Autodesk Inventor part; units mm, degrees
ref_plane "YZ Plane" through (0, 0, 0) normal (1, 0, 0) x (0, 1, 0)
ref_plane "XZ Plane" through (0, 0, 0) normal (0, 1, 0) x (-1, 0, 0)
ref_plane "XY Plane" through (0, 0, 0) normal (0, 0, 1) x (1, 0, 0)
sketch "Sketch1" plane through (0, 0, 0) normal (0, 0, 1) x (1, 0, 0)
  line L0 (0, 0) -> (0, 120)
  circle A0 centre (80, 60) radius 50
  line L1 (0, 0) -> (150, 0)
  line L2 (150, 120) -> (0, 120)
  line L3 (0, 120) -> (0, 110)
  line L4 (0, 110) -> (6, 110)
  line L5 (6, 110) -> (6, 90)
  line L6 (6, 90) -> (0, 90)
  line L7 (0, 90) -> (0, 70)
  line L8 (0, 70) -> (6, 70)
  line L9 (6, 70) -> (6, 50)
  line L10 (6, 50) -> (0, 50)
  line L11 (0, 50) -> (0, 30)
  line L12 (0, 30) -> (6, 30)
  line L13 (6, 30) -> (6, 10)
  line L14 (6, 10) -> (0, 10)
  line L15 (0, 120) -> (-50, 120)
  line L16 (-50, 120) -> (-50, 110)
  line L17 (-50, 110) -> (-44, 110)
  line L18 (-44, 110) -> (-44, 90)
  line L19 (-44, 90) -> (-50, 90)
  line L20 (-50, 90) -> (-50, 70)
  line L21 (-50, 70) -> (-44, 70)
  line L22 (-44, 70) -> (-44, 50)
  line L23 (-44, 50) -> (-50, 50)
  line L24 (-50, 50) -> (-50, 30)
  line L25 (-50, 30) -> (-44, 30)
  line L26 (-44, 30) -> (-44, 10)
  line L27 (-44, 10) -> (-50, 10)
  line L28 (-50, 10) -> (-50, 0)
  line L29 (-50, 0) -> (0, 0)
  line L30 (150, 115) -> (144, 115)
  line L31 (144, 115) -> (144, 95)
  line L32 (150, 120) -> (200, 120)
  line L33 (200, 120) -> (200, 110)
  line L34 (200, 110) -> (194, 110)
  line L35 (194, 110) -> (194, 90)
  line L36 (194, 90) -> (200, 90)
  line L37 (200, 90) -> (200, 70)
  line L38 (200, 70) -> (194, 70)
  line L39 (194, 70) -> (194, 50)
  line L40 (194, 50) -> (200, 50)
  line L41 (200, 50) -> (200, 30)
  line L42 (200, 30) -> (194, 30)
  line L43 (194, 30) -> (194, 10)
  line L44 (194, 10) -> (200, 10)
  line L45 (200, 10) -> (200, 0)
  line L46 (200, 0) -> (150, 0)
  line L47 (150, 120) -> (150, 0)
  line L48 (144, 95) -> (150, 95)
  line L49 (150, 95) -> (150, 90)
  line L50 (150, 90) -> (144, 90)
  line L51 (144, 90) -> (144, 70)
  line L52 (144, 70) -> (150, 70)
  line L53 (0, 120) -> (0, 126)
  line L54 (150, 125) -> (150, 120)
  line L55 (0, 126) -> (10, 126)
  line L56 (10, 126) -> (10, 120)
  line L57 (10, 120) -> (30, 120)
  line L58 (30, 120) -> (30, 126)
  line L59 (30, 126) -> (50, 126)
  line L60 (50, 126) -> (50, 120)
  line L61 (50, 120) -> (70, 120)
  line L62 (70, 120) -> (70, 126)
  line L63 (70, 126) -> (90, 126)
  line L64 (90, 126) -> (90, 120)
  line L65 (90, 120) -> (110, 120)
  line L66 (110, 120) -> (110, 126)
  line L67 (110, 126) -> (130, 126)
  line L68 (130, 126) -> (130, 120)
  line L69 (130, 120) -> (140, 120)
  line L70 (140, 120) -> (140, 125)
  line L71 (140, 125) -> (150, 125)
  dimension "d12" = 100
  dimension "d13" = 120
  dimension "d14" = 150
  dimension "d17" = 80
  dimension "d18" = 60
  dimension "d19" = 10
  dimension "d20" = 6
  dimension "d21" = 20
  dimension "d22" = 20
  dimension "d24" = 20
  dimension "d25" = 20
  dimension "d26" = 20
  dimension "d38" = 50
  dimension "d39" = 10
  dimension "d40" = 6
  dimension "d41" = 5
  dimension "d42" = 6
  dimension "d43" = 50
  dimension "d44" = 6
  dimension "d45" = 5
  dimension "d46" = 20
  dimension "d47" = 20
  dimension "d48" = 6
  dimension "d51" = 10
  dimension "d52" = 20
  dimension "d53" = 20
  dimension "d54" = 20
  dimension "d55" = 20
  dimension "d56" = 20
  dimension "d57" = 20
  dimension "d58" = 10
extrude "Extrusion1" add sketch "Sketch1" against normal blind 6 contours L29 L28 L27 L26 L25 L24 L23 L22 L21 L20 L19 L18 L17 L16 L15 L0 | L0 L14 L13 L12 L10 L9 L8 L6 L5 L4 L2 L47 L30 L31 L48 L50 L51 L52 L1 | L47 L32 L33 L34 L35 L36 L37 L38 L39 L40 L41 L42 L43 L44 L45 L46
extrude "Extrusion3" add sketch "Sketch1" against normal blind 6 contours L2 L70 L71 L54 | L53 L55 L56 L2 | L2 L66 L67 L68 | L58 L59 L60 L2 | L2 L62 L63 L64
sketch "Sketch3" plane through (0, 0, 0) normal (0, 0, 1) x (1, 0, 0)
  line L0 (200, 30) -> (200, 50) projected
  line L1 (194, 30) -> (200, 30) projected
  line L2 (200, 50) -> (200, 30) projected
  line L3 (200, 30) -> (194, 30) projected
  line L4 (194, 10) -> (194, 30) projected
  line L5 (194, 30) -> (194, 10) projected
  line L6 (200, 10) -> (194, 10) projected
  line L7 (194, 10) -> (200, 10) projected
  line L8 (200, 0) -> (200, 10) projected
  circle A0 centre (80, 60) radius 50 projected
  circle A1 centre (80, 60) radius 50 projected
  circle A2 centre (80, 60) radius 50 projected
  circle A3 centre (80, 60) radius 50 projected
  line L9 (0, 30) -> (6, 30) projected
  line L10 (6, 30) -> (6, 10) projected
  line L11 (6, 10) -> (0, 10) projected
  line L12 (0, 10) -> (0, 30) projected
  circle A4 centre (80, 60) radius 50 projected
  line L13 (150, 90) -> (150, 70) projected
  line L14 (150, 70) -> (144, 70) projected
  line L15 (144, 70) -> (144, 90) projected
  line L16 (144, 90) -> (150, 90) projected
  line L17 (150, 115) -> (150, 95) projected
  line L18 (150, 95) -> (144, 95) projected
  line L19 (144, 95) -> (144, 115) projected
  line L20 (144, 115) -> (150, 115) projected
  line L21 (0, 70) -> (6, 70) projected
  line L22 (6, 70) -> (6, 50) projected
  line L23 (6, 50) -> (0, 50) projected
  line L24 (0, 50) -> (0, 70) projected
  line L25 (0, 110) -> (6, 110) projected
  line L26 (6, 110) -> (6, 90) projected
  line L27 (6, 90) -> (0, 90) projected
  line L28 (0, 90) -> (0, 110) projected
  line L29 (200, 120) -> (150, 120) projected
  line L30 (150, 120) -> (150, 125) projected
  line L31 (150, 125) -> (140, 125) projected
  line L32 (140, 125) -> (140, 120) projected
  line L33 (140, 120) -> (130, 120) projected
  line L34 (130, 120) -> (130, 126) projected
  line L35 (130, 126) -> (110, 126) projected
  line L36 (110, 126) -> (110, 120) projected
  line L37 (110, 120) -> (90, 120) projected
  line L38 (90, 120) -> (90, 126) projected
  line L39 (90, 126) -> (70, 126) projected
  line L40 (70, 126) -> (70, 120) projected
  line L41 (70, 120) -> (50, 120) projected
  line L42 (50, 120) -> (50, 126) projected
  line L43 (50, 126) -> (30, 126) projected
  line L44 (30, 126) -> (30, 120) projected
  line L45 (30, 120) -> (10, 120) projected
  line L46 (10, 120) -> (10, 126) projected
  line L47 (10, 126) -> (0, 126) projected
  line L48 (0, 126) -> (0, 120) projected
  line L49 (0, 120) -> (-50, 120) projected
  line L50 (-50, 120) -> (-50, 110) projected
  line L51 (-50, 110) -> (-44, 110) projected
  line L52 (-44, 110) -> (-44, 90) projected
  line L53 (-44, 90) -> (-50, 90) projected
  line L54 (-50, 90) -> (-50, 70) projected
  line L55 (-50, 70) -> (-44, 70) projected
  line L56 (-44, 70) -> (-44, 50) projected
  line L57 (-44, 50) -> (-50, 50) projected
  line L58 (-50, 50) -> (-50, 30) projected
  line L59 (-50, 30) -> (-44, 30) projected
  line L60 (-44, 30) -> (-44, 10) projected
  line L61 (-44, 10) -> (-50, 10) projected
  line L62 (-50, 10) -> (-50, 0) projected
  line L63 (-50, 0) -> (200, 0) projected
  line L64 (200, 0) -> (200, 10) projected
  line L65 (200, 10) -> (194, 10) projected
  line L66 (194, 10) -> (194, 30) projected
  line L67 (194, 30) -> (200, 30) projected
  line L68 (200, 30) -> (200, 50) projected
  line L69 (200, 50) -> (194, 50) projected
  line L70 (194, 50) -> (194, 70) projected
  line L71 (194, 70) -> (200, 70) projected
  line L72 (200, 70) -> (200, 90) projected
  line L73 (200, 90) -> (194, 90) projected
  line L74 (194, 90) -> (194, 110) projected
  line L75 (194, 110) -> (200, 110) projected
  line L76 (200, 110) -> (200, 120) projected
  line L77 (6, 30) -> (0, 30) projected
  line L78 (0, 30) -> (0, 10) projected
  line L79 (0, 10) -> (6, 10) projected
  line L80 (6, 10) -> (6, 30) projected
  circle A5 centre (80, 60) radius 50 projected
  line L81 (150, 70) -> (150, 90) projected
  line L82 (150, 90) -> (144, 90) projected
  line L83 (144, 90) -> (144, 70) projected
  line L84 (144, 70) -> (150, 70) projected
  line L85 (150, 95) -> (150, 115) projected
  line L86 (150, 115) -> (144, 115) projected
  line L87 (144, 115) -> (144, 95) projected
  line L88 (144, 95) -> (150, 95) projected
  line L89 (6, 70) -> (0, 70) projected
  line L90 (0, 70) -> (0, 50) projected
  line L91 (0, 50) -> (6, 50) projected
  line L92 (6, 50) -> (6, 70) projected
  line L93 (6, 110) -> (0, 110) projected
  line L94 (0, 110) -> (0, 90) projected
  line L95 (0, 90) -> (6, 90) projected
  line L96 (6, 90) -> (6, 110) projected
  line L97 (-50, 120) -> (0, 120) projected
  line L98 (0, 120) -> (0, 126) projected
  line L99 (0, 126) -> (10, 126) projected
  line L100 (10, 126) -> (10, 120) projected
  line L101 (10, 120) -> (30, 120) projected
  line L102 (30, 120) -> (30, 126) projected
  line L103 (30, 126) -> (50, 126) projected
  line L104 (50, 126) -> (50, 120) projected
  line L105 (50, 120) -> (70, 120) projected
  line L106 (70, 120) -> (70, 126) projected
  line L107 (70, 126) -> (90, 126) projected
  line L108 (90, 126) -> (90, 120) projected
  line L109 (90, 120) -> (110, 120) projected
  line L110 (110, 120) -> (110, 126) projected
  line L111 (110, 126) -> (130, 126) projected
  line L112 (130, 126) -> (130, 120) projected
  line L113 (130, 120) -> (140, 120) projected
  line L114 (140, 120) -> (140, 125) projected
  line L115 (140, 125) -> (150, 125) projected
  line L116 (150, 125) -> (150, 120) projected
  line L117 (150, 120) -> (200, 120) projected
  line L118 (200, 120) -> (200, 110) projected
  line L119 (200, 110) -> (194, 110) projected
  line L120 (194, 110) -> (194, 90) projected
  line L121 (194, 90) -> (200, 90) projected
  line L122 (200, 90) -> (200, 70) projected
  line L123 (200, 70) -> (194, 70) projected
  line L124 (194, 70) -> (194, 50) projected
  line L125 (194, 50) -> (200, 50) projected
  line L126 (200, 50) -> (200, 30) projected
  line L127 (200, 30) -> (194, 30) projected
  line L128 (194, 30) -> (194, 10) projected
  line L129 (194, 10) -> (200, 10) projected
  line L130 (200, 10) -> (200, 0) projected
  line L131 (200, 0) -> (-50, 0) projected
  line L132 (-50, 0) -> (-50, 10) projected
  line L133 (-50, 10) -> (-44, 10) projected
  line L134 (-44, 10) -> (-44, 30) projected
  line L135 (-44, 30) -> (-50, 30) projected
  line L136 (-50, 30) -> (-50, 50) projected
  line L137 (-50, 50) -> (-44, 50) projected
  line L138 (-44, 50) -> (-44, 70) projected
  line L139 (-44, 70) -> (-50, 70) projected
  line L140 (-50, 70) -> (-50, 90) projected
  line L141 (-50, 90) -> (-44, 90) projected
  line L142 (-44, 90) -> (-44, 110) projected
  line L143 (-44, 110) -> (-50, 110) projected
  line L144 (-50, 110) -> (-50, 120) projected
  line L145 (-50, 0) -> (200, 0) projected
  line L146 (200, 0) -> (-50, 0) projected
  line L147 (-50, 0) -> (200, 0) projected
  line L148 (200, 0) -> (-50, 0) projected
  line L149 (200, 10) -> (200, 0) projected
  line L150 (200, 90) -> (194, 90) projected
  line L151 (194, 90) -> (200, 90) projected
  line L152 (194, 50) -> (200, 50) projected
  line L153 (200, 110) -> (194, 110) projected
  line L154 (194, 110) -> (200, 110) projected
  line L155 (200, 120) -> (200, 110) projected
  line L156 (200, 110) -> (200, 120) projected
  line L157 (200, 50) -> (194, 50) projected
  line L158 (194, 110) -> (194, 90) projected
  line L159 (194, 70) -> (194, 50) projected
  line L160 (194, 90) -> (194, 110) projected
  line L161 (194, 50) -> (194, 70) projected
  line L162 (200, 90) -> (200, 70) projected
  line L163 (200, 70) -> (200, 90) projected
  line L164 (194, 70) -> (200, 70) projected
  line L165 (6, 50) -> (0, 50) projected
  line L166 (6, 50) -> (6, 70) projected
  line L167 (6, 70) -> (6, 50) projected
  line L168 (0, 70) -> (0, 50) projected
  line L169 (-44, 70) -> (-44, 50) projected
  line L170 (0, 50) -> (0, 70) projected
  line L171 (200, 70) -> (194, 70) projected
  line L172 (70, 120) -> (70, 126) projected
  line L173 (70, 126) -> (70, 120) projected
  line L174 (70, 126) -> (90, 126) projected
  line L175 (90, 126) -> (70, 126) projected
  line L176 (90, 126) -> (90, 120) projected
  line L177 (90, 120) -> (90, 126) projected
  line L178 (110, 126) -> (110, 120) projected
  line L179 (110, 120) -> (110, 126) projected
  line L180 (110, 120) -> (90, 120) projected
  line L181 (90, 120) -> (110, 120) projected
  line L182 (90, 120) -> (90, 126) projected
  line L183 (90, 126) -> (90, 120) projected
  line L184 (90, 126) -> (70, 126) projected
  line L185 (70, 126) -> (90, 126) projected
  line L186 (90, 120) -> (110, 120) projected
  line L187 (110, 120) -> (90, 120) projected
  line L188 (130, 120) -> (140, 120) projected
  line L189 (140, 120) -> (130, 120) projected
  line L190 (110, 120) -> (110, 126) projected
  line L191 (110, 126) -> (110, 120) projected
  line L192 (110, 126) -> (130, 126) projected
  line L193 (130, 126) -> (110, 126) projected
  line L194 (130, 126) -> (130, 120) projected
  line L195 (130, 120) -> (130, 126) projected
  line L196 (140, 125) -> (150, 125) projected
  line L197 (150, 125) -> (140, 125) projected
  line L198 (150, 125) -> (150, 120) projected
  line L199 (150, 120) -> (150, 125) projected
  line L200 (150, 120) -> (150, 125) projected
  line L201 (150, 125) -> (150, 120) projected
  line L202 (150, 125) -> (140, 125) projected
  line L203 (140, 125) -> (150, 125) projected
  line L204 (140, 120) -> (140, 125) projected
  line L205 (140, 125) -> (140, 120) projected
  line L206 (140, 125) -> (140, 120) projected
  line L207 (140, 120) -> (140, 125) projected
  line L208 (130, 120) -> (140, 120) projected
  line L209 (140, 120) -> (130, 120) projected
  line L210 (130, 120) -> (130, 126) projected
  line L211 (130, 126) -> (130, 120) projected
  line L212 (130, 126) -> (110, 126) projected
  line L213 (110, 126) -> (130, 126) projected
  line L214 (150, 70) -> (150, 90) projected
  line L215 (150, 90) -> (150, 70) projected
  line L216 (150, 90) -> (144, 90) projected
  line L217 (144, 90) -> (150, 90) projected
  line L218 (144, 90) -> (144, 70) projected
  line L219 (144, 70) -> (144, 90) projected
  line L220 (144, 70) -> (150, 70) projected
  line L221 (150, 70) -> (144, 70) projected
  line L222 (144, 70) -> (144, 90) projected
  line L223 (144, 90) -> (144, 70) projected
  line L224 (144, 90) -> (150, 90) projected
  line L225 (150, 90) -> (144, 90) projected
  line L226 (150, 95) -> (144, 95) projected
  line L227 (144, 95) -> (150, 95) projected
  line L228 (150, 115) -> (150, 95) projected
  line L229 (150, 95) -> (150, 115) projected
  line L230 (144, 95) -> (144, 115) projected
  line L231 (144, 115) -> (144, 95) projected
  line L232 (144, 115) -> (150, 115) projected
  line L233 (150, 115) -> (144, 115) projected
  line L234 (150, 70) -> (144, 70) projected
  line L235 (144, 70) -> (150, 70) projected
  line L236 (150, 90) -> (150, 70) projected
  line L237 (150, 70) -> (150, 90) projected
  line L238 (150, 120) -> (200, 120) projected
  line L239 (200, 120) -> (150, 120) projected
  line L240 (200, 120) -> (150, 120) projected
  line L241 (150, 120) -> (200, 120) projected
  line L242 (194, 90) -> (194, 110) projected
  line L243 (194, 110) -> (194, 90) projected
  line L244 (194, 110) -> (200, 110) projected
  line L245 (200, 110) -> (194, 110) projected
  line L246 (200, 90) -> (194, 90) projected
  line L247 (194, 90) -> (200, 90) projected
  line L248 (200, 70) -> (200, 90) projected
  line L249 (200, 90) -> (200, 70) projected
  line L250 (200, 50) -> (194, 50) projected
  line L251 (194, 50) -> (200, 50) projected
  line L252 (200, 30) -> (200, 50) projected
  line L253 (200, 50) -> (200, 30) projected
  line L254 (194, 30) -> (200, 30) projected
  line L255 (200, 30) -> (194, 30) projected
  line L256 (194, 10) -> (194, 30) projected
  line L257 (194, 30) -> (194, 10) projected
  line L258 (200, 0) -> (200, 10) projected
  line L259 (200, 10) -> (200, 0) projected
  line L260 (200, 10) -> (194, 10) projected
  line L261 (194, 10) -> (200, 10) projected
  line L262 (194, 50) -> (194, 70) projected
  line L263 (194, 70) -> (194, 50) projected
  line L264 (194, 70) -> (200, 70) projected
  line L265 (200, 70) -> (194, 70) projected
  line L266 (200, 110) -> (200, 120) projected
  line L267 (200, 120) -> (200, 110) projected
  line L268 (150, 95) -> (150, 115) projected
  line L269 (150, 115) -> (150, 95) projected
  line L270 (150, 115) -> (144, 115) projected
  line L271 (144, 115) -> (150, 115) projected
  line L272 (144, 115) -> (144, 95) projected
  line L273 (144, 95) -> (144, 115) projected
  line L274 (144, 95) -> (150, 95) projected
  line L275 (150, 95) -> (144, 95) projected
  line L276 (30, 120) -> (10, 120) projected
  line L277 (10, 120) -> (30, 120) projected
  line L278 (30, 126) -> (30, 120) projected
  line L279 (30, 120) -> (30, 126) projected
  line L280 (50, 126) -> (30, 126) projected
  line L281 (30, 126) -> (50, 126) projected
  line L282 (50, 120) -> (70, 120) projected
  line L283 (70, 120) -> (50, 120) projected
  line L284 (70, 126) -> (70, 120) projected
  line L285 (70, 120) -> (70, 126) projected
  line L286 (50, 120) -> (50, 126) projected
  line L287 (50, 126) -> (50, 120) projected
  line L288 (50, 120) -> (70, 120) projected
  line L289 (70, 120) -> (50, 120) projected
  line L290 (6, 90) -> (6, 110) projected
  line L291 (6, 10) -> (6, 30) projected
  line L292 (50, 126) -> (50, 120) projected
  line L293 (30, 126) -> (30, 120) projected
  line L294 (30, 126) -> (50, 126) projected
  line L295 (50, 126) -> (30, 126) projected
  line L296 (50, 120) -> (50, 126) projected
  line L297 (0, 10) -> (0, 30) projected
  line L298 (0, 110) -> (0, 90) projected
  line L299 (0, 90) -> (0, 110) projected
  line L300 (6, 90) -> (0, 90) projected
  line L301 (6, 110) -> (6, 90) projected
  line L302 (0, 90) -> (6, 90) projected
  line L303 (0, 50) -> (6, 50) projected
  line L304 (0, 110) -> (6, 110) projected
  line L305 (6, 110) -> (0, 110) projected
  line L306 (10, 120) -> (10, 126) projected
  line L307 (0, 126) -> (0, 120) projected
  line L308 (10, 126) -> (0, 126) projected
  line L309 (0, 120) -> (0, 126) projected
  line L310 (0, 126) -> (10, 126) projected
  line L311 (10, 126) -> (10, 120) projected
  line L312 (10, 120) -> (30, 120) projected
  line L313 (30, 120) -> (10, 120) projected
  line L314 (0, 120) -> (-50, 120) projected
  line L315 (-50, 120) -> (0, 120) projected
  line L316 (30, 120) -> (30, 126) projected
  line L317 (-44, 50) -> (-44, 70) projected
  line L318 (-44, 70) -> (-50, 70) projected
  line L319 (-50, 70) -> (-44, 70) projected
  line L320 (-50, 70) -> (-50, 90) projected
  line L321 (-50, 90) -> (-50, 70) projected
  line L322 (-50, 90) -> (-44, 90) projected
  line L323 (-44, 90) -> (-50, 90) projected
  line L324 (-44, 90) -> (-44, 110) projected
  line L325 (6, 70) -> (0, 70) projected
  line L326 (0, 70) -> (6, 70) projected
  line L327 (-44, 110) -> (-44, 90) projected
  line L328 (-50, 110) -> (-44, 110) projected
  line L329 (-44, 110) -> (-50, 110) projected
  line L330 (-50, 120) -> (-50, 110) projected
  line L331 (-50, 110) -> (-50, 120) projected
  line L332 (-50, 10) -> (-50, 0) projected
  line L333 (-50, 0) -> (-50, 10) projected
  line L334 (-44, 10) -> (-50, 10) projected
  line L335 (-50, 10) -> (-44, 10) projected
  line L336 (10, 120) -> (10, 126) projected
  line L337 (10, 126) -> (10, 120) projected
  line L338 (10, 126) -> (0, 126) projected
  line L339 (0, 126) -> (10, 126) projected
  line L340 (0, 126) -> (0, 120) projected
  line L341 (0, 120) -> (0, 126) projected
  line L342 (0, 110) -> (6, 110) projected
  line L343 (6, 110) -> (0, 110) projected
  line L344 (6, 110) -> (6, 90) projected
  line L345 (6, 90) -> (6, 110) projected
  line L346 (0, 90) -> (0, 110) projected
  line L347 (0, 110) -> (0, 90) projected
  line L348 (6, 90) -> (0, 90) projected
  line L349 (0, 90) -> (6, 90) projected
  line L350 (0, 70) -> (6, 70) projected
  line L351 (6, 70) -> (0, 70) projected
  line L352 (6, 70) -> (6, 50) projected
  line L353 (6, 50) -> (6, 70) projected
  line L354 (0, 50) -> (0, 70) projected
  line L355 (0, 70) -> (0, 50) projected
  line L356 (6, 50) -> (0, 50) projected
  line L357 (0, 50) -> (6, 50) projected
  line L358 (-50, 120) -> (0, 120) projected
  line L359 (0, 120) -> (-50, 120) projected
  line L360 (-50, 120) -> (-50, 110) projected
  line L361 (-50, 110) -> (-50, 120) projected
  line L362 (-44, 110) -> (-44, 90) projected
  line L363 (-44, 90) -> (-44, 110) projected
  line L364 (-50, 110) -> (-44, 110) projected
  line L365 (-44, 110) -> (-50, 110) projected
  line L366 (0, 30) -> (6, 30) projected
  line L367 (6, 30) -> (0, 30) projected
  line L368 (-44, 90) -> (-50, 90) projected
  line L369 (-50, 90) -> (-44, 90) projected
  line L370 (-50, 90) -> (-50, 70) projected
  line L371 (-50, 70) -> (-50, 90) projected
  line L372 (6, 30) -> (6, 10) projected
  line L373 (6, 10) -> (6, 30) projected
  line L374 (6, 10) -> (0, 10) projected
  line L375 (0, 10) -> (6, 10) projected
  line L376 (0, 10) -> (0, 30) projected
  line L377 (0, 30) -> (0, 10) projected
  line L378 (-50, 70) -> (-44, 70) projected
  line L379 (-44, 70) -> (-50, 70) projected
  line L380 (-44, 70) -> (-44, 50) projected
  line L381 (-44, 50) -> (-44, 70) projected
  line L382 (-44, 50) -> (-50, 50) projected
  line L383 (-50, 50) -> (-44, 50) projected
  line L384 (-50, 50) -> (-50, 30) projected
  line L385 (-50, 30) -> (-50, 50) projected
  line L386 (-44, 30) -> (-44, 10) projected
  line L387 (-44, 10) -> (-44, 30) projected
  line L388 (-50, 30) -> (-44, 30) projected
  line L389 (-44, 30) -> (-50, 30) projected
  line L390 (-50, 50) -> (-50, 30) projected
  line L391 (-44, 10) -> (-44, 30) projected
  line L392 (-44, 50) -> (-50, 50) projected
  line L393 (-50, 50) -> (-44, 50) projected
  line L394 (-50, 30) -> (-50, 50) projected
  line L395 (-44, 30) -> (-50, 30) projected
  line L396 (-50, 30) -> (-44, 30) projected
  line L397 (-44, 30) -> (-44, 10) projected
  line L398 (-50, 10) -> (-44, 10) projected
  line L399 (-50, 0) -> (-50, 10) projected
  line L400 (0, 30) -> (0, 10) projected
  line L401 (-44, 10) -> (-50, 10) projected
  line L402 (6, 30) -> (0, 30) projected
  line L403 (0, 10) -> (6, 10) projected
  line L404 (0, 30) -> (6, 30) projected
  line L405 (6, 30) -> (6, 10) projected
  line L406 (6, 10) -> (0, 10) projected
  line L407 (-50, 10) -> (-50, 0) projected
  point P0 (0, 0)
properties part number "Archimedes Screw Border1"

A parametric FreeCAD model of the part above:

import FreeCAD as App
import Part
import Sketcher

doc = App.newDocument("Part")
body = doc.addObject("PartDesign::Body", "Body")

# Sketch on XY plane
sketch1 = doc.addObject("Sketcher::SketchObject", "Sketch")
body.addObject(sketch1)
sketch1.AttachmentSupport = (doc.XY_Plane, [""])
sketch1.MapMode = "FlatFace"
sketch1.addGeometry([
    Part.LineSegment(App.Vector(-50, 0, 0), App.Vector(200, 0, 0)),  # 0
    Part.LineSegment(App.Vector(200, 0, 0), App.Vector(200, 10, 0)),  # 1
    Part.LineSegment(App.Vector(200, 10, 0), App.Vector(194, 10, 0)),  # 2
    Part.LineSegment(App.Vector(194, 10, 0), App.Vector(194, 30, 0)),  # 3
    Part.LineSegment(App.Vector(194, 30, 0), App.Vector(200, 30, 0)),  # 4
    Part.LineSegment(App.Vector(200, 30, 0), App.Vector(200, 50, 0)),  # 5
    Part.LineSegment(App.Vector(200, 50, 0), App.Vector(194, 50, 0)),  # 6
    Part.LineSegment(App.Vector(194, 50, 0), App.Vector(194, 70, 0)),  # 7
    Part.LineSegment(App.Vector(194, 70, 0), App.Vector(200, 70, 0)),  # 8
    Part.LineSegment(App.Vector(200, 70, 0), App.Vector(200, 90, 0)),  # 9
    Part.LineSegment(App.Vector(200, 90, 0), App.Vector(194, 90, 0)),  # 10
    Part.LineSegment(App.Vector(194, 90, 0), App.Vector(194, 110, 0)),  # 11
    Part.LineSegment(App.Vector(194, 110, 0), App.Vector(200, 110, 0)),  # 12
    Part.LineSegment(App.Vector(200, 110, 0), App.Vector(200, 120, 0)),  # 13
    Part.LineSegment(App.Vector(200, 120, 0), App.Vector(-50, 120, 0)),  # 14
    Part.LineSegment(App.Vector(-50, 120, 0), App.Vector(-50, 110, 0)),  # 15
    Part.LineSegment(App.Vector(-50, 110, 0), App.Vector(-44, 110, 0)),  # 16
    Part.LineSegment(App.Vector(-44, 110, 0), App.Vector(-44, 90, 0)),  # 17
    Part.LineSegment(App.Vector(-44, 90, 0), App.Vector(-50, 90, 0)),  # 18
    Part.LineSegment(App.Vector(-50, 90, 0), App.Vector(-50, 70, 0)),  # 19
    Part.LineSegment(App.Vector(-50, 70, 0), App.Vector(-44, 70, 0)),  # 20
    Part.LineSegment(App.Vector(-44, 70, 0), App.Vector(-44, 50, 0)),  # 21
    Part.LineSegment(App.Vector(-44, 50, 0), App.Vector(-50, 50, 0)),  # 22
    Part.LineSegment(App.Vector(-50, 50, 0), App.Vector(-50, 30, 0)),  # 23
    Part.LineSegment(App.Vector(-50, 30, 0), App.Vector(-44, 30, 0)),  # 24
    Part.LineSegment(App.Vector(-44, 30, 0), App.Vector(-44, 10, 0)),  # 25
    Part.LineSegment(App.Vector(-44, 10, 0), App.Vector(-50, 10, 0)),  # 26
    Part.LineSegment(App.Vector(-50, 10, 0), App.Vector(-50, 0, 0)),  # 27
    Part.LineSegment(App.Vector(0, 90, 0), App.Vector(0, 110, 0)),  # 28
    Part.LineSegment(App.Vector(0, 110, 0), App.Vector(6, 110, 0)),  # 29
    Part.LineSegment(App.Vector(6, 110, 0), App.Vector(6, 90, 0)),  # 30
    Part.LineSegment(App.Vector(6, 90, 0), App.Vector(0, 90, 0)),  # 31
    Part.LineSegment(App.Vector(0, 50, 0), App.Vector(0, 70, 0)),  # 32
    Part.LineSegment(App.Vector(0, 70, 0), App.Vector(6, 70, 0)),  # 33
    Part.LineSegment(App.Vector(6, 70, 0), App.Vector(6, 50, 0)),  # 34
    Part.LineSegment(App.Vector(6, 50, 0), App.Vector(0, 50, 0)),  # 35
    Part.LineSegment(App.Vector(0, 10, 0), App.Vector(0, 30, 0)),  # 36
    Part.LineSegment(App.Vector(0, 30, 0), App.Vector(6, 30, 0)),  # 37
    Part.LineSegment(App.Vector(6, 30, 0), App.Vector(6, 10, 0)),  # 38
    Part.LineSegment(App.Vector(6, 10, 0), App.Vector(0, 10, 0)),  # 39
    Part.LineSegment(App.Vector(150, 70, 0), App.Vector(144, 70, 0)),  # 40
    Part.LineSegment(App.Vector(144, 70, 0), App.Vector(144, 90, 0)),  # 41
    Part.LineSegment(App.Vector(144, 90, 0), App.Vector(150, 90, 0)),  # 42
    Part.LineSegment(App.Vector(150, 90, 0), App.Vector(150, 70, 0)),  # 43
    Part.Circle(App.Vector(80, 60, 0), App.Vector(0, 0, 1), 50),  # 44
    Part.LineSegment(App.Vector(144, 115, 0), App.Vector(150, 115, 0)),  # 45
    Part.LineSegment(App.Vector(150, 115, 0), App.Vector(150, 95, 0)),  # 46
    Part.LineSegment(App.Vector(150, 95, 0), App.Vector(144, 95, 0)),  # 47
    Part.LineSegment(App.Vector(144, 95, 0), App.Vector(144, 115, 0)),  # 48
], False)
sketch1.addConstraint([
    Sketcher.Constraint("Coincident", 0, 2, 1, 1),
    Sketcher.Constraint("Coincident", 1, 2, 2, 1),
    Sketcher.Constraint("Coincident", 2, 2, 3, 1),
    Sketcher.Constraint("Coincident", 3, 2, 4, 1),
    Sketcher.Constraint("Coincident", 4, 2, 5, 1),
    Sketcher.Constraint("Coincident", 5, 2, 6, 1),
    Sketcher.Constraint("Coincident", 6, 2, 7, 1),
    Sketcher.Constraint("Coincident", 7, 2, 8, 1),
    Sketcher.Constraint("Coincident", 8, 2, 9, 1),
    Sketcher.Constraint("Coincident", 9, 2, 10, 1),
    Sketcher.Constraint("Coincident", 10, 2, 11, 1),
    Sketcher.Constraint("Coincident", 11, 2, 12, 1),
    Sketcher.Constraint("Coincident", 12, 2, 13, 1),
    Sketcher.Constraint("Coincident", 13, 2, 14, 1),
    Sketcher.Constraint("Coincident", 14, 2, 15, 1),
    Sketcher.Constraint("Coincident", 15, 2, 16, 1),
    Sketcher.Constraint("Coincident", 16, 2, 17, 1),
    Sketcher.Constraint("Coincident", 17, 2, 18, 1),
    Sketcher.Constraint("Coincident", 18, 2, 19, 1),
    Sketcher.Constraint("Coincident", 19, 2, 20, 1),
    Sketcher.Constraint("Coincident", 20, 2, 21, 1),
    Sketcher.Constraint("Coincident", 21, 2, 22, 1),
    Sketcher.Constraint("Coincident", 22, 2, 23, 1),
    Sketcher.Constraint("Coincident", 23, 2, 24, 1),
    Sketcher.Constraint("Coincident", 24, 2, 25, 1),
    Sketcher.Constraint("Coincident", 25, 2, 26, 1),
    Sketcher.Constraint("Coincident", 26, 2, 27, 1),
    Sketcher.Constraint("Coincident", 27, 2, 0, 1),
    Sketcher.Constraint("Coincident", 28, 2, 29, 1),
    Sketcher.Constraint("Coincident", 29, 2, 30, 1),
    Sketcher.Constraint("Coincident", 30, 2, 31, 1),
    Sketcher.Constraint("Coincident", 31, 2, 28, 1),
    Sketcher.Constraint("Coincident", 32, 2, 33, 1),
    Sketcher.Constraint("Coincident", 33, 2, 34, 1),
    Sketcher.Constraint("Coincident", 34, 2, 35, 1),
    Sketcher.Constraint("Coincident", 35, 2, 32, 1),
    Sketcher.Constraint("Coincident", 36, 2, 37, 1),
    Sketcher.Constraint("Coincident", 37, 2, 38, 1),
    Sketcher.Constraint("Coincident", 38, 2, 39, 1),
    Sketcher.Constraint("Coincident", 39, 2, 36, 1),
    Sketcher.Constraint("Coincident", 40, 2, 41, 1),
    Sketcher.Constraint("Coincident", 41, 2, 42, 1),
    Sketcher.Constraint("Coincident", 42, 2, 43, 1),
    Sketcher.Constraint("Coincident", 43, 2, 40, 1),
    Sketcher.Constraint("Coincident", 45, 2, 46, 1),
    Sketcher.Constraint("Coincident", 46, 2, 47, 1),
    Sketcher.Constraint("Coincident", 47, 2, 48, 1),
    Sketcher.Constraint("Coincident", 48, 2, 45, 1),
    Sketcher.Constraint("Horizontal", 0),
    Sketcher.Constraint("Vertical", 1),
    Sketcher.Constraint("Horizontal", 2),
    Sketcher.Constraint("Vertical", 3),
    Sketcher.Constraint("Horizontal", 4),
    Sketcher.Constraint("Vertical", 5),
    Sketcher.Constraint("Horizontal", 6),
    Sketcher.Constraint("Vertical", 7),
    Sketcher.Constraint("Horizontal", 8),
    Sketcher.Constraint("Vertical", 9),
    Sketcher.Constraint("Horizontal", 10),
    Sketcher.Constraint("Vertical", 11),
    Sketcher.Constraint("Horizontal", 12),
    Sketcher.Constraint("Vertical", 13),
    Sketcher.Constraint("Horizontal", 14),
    Sketcher.Constraint("Vertical", 15),
    Sketcher.Constraint("Horizontal", 16),
    Sketcher.Constraint("Vertical", 17),
    Sketcher.Constraint("Horizontal", 18),
    Sketcher.Constraint("Vertical", 19),
    Sketcher.Constraint("Horizontal", 20),
    Sketcher.Constraint("Vertical", 21),
    Sketcher.Constraint("Horizontal", 22),
    Sketcher.Constraint("Vertical", 23),
    Sketcher.Constraint("Horizontal", 24),
    Sketcher.Constraint("Vertical", 25),
    Sketcher.Constraint("Horizontal", 26),
    Sketcher.Constraint("Vertical", 27),
    Sketcher.Constraint("Vertical", 28),
    Sketcher.Constraint("Horizontal", 29),
    Sketcher.Constraint("Vertical", 30),
    Sketcher.Constraint("Horizontal", 31),
    Sketcher.Constraint("Vertical", 32),
    Sketcher.Constraint("Horizontal", 33),
    Sketcher.Constraint("Vertical", 34),
    Sketcher.Constraint("Horizontal", 35),
    Sketcher.Constraint("Vertical", 36),
    Sketcher.Constraint("Horizontal", 37),
    Sketcher.Constraint("Vertical", 38),
    Sketcher.Constraint("Horizontal", 39),
    Sketcher.Constraint("Horizontal", 40),
    Sketcher.Constraint("Vertical", 41),
    Sketcher.Constraint("Horizontal", 42),
    Sketcher.Constraint("Vertical", 43),
    Sketcher.Constraint("Horizontal", 45),
    Sketcher.Constraint("Vertical", 46),
    Sketcher.Constraint("Horizontal", 47),
    Sketcher.Constraint("Vertical", 48),
    Sketcher.Constraint("PointOnObject", 0, 2, -1),
    Sketcher.Constraint("PointOnObject", 28, 2, -2),
    Sketcher.Constraint("PointOnObject", 32, 2, -2),
    Sketcher.Constraint("PointOnObject", 36, 2, -2),
    Sketcher.Constraint("Horizontal", 12, 2, 15, 2),
    Sketcher.Constraint("Horizontal", 10, 2, 17, 2),
    Sketcher.Constraint("Horizontal", 8, 2, 19, 2),
    Sketcher.Constraint("Horizontal", 6, 2, 21, 2),
    Sketcher.Constraint("Horizontal", 4, 2, 23, 2),
    Sketcher.Constraint("Horizontal", 2, 2, 25, 2),
    Sketcher.Constraint("Horizontal", 16, 2, 28, 2),
    Sketcher.Constraint("Horizontal", 18, 2, 30, 2),
    Sketcher.Constraint("Horizontal", 20, 2, 32, 2),
    Sketcher.Constraint("Horizontal", 22, 2, 34, 2),
    Sketcher.Constraint("Horizontal", 24, 2, 36, 2),
    Sketcher.Constraint("Horizontal", 26, 2, 38, 2),
    Sketcher.Constraint("Horizontal", 33, 2, 40, 2),
    Sketcher.Constraint("Horizontal", 31, 2, 41, 2),
    Sketcher.Constraint("Vertical", 1, 2, 4, 2),
    Sketcher.Constraint("Vertical", 3, 2, 6, 2),
    Sketcher.Constraint("Vertical", 5, 2, 8, 2),
    Sketcher.Constraint("Vertical", 7, 2, 10, 2),
    Sketcher.Constraint("Vertical", 9, 2, 12, 2),
    Sketcher.Constraint("Vertical", 15, 2, 18, 2),
    Sketcher.Constraint("Vertical", 17, 2, 20, 2),
    Sketcher.Constraint("Vertical", 19, 2, 22, 2),
    Sketcher.Constraint("Vertical", 21, 2, 24, 2),
    Sketcher.Constraint("Vertical", 23, 2, 26, 2),
    Sketcher.Constraint("Vertical", 30, 2, 33, 2),
    Sketcher.Constraint("Vertical", 34, 2, 37, 2),
    Sketcher.Constraint("Vertical", 43, 2, 45, 2),
    Sketcher.Constraint("Vertical", 41, 2, 47, 2),
    Sketcher.Constraint("Equal", 12, 16),
    Sketcher.Constraint("Equal", 26, 29),
    Sketcher.Constraint("Equal", 39, 40),
    Sketcher.Constraint("Equal", 3, 5),
    Sketcher.Constraint("Equal", 5, 7),
    Sketcher.Constraint("Equal", 7, 9),
    Sketcher.Constraint("Equal", 9, 11),
    Sketcher.Constraint("Equal", 1, 13),
    Sketcher.Constraint("Equal", 43, 46),
    Sketcher.Constraint("Diameter", 44, 100.0),
    Sketcher.Constraint("DistanceX", 2, 2, 2, 1, 6.0),
    Sketcher.Constraint("DistanceY", 1, 1, 1, 2, 10.0),
    Sketcher.Constraint("DistanceY", 3, 1, 3, 2, 20.0),
    Sketcher.Constraint("DistanceX", -1, 1, 44, 3, 80.0),
    Sketcher.Constraint("DistanceY", -1, 1, 44, 3, 60.0),
    Sketcher.Constraint("DistanceX", 14, 2, -1, 1, 50.0),
    Sketcher.Constraint("DistanceX", -1, 1, 42, 2, 150.0),
    Sketcher.Constraint("DistanceX", 44, 3, 0, 2, 120.0),
    Sketcher.Constraint("DistanceY", 11, 2, 45, 2, 5.0),
])
pad1 = doc.addObject("PartDesign::Pad", "Pad")
body.addObject(pad1)
pad1.Profile = sketch1
pad1.Length = 6
pad1.Reversed = True

# Sketch on XY plane
sketch2 = doc.addObject("Sketcher::SketchObject", "Sketch001")
body.addObject(sketch2)
sketch2.AttachmentSupport = (doc.XY_Plane, [""])
sketch2.MapMode = "FlatFace"
sketch2.addGeometry([
    Part.LineSegment(App.Vector(140, 120, 0), App.Vector(150, 120, 0)),  # 0
    Part.LineSegment(App.Vector(150, 120, 0), App.Vector(150, 125, 0)),  # 1
    Part.LineSegment(App.Vector(150, 125, 0), App.Vector(140, 125, 0)),  # 2
    Part.LineSegment(App.Vector(140, 125, 0), App.Vector(140, 120, 0)),  # 3
    Part.LineSegment(App.Vector(0, 126, 0), App.Vector(0, 120, 0)),  # 4
    Part.LineSegment(App.Vector(0, 120, 0), App.Vector(10, 120, 0)),  # 5
    Part.LineSegment(App.Vector(10, 120, 0), App.Vector(10, 126, 0)),  # 6
    Part.LineSegment(App.Vector(10, 126, 0), App.Vector(0, 126, 0)),  # 7
    Part.LineSegment(App.Vector(110, 120, 0), App.Vector(130, 120, 0)),  # 8
    Part.LineSegment(App.Vector(130, 120, 0), App.Vector(130, 126, 0)),  # 9
    Part.LineSegment(App.Vector(130, 126, 0), App.Vector(110, 126, 0)),  # 10
    Part.LineSegment(App.Vector(110, 126, 0), App.Vector(110, 120, 0)),  # 11
    Part.LineSegment(App.Vector(30, 126, 0), App.Vector(30, 120, 0)),  # 12
    Part.LineSegment(App.Vector(30, 120, 0), App.Vector(50, 120, 0)),  # 13
    Part.LineSegment(App.Vector(50, 120, 0), App.Vector(50, 126, 0)),  # 14
    Part.LineSegment(App.Vector(50, 126, 0), App.Vector(30, 126, 0)),  # 15
    Part.LineSegment(App.Vector(70, 120, 0), App.Vector(90, 120, 0)),  # 16
    Part.LineSegment(App.Vector(90, 120, 0), App.Vector(90, 126, 0)),  # 17
    Part.LineSegment(App.Vector(90, 126, 0), App.Vector(70, 126, 0)),  # 18
    Part.LineSegment(App.Vector(70, 126, 0), App.Vector(70, 120, 0)),  # 19
], False)
sketch2.addConstraint([
    Sketcher.Constraint("Coincident", 0, 2, 1, 1),
    Sketcher.Constraint("Coincident", 1, 2, 2, 1),
    Sketcher.Constraint("Coincident", 2, 2, 3, 1),
    Sketcher.Constraint("Coincident", 3, 2, 0, 1),
    Sketcher.Constraint("Coincident", 4, 2, 5, 1),
    Sketcher.Constraint("Coincident", 5, 2, 6, 1),
    Sketcher.Constraint("Coincident", 6, 2, 7, 1),
    Sketcher.Constraint("Coincident", 7, 2, 4, 1),
    Sketcher.Constraint("Coincident", 8, 2, 9, 1),
    Sketcher.Constraint("Coincident", 9, 2, 10, 1),
    Sketcher.Constraint("Coincident", 10, 2, 11, 1),
    Sketcher.Constraint("Coincident", 11, 2, 8, 1),
    Sketcher.Constraint("Coincident", 12, 2, 13, 1),
    Sketcher.Constraint("Coincident", 13, 2, 14, 1),
    Sketcher.Constraint("Coincident", 14, 2, 15, 1),
    Sketcher.Constraint("Coincident", 15, 2, 12, 1),
    Sketcher.Constraint("Coincident", 16, 2, 17, 1),
    Sketcher.Constraint("Coincident", 17, 2, 18, 1),
    Sketcher.Constraint("Coincident", 18, 2, 19, 1),
    Sketcher.Constraint("Coincident", 19, 2, 16, 1),
    Sketcher.Constraint("Horizontal", 0),
    Sketcher.Constraint("Vertical", 1),
    Sketcher.Constraint("Horizontal", 2),
    Sketcher.Constraint("Vertical", 3),
    Sketcher.Constraint("Vertical", 4),
    Sketcher.Constraint("Horizontal", 5),
    Sketcher.Constraint("Vertical", 6),
    Sketcher.Constraint("Horizontal", 7),
    Sketcher.Constraint("Horizontal", 8),
    Sketcher.Constraint("Vertical", 9),
    Sketcher.Constraint("Horizontal", 10),
    Sketcher.Constraint("Vertical", 11),
    Sketcher.Constraint("Vertical", 12),
    Sketcher.Constraint("Horizontal", 13),
    Sketcher.Constraint("Vertical", 14),
    Sketcher.Constraint("Horizontal", 15),
    Sketcher.Constraint("Horizontal", 16),
    Sketcher.Constraint("Vertical", 17),
    Sketcher.Constraint("Horizontal", 18),
    Sketcher.Constraint("Vertical", 19),
    Sketcher.Constraint("PointOnObject", 4, 2, -2),
    Sketcher.Constraint("Horizontal", 3, 2, 4, 2),
    Sketcher.Constraint("Horizontal", 5, 2, 8, 2),
    Sketcher.Constraint("Horizontal", 7, 2, 9, 2),
    Sketcher.Constraint("Horizontal", 11, 2, 12, 2),
    Sketcher.Constraint("Horizontal", 10, 2, 14, 2),
    Sketcher.Constraint("Horizontal", 13, 2, 16, 2),
    Sketcher.Constraint("Horizontal", 15, 2, 17, 2),
    Sketcher.Constraint("Equal", 2, 5),
    Sketcher.Constraint("Equal", 10, 13),
    Sketcher.Constraint("Equal", 15, 16),
    Sketcher.Constraint("DistanceX", 0, 1, 0, 2, 10.0),
    Sketcher.Constraint("DistanceX", 8, 1, 8, 2, 20.0),
    Sketcher.Constraint("DistanceY", 1, 1, 1, 2, 5.0),
    Sketcher.Constraint("DistanceY", 4, 2, 4, 1, 6.0),
    Sketcher.Constraint("DistanceX", -1, 1, 0, 2, 150.0),
    Sketcher.Constraint("DistanceY", -1, 1, 0, 2, 120.0),
    Sketcher.Constraint("DistanceX", -1, 1, 13, 2, 50.0),
    Sketcher.Constraint("DistanceX", 8, 2, 3, 2, 10.0),
    Sketcher.Constraint("DistanceX", 16, 2, 11, 2, 20.0),
])
pad2 = doc.addObject("PartDesign::Pad", "Pad001")
body.addObject(pad2)
pad2.Profile = sketch2
pad2.Length = 6
pad2.Reversed = True

doc.recompute()
